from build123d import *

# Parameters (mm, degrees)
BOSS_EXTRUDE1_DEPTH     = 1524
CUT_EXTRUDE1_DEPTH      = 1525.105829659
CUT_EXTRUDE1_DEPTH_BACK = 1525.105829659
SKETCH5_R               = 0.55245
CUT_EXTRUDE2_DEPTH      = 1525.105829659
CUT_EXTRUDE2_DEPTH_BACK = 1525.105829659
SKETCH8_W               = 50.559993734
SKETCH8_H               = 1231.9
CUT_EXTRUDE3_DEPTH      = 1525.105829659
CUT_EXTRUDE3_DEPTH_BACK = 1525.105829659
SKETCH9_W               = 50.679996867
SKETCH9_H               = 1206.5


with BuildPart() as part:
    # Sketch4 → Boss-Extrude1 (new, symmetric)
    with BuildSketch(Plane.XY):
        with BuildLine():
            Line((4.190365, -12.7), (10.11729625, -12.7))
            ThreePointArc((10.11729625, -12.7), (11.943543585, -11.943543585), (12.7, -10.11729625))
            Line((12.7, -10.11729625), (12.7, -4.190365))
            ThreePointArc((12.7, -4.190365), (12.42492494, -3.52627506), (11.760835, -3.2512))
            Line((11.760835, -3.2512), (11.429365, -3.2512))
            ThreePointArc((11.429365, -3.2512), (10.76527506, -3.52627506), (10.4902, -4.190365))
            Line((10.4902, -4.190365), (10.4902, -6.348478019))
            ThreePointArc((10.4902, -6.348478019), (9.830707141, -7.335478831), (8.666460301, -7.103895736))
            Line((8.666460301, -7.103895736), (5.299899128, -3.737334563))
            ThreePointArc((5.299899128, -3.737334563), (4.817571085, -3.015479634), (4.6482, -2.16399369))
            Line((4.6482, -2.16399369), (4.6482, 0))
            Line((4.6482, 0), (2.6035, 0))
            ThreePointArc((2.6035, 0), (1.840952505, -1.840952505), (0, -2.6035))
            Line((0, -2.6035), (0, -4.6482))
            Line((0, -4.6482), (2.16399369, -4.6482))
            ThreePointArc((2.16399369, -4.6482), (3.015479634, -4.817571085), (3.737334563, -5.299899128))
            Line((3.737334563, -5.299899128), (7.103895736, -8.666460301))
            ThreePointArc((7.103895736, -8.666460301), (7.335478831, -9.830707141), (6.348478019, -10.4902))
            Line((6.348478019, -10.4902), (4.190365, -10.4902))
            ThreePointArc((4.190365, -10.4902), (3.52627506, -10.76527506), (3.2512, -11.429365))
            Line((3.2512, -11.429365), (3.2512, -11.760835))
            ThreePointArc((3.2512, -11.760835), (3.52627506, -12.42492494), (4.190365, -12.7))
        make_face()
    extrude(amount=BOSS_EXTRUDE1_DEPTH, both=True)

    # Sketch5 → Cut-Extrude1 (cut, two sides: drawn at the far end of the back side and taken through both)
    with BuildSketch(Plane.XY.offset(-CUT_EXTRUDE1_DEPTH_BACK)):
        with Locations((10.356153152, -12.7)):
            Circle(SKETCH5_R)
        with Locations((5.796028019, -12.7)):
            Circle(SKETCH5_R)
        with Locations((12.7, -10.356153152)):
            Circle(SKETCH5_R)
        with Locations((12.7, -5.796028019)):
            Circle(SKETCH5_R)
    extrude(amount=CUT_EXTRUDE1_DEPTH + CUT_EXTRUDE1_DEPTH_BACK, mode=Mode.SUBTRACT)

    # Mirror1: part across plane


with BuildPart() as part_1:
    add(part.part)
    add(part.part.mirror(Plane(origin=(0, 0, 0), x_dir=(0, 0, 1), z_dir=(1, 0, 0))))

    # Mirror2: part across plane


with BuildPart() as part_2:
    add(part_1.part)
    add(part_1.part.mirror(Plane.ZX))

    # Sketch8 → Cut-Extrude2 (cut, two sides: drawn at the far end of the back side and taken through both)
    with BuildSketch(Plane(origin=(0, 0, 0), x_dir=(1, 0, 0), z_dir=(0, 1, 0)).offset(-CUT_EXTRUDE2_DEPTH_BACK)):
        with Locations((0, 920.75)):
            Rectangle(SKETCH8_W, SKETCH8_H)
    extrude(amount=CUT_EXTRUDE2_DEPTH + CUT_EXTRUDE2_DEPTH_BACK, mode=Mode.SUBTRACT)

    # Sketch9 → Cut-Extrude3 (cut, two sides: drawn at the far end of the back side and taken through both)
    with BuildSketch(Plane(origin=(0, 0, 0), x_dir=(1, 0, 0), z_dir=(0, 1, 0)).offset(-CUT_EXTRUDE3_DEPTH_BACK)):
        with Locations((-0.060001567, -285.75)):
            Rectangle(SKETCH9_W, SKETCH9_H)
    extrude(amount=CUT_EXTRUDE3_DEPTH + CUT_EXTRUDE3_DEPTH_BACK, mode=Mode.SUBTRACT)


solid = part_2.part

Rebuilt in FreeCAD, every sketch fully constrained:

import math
import FreeCAD as App
import Part
import Sketcher
Q = App.Units.Quantity


def add_polygon(sketch, points):
    """Adds a closed chain of lines whose ends are joined by coincident constraints."""
    first, n = sketch.GeometryCount, len(points)
    for a, b in zip(points, points[1:] + points[:1]):
        sketch.addGeometry(Part.LineSegment(App.Vector(*a, 0), App.Vector(*b, 0)), False)
    for i in range(n):
        sketch.addConstraint(Sketcher.Constraint("Coincident", first + i, 2, first + (i + 1) % n, 1))

doc = App.newDocument("Part")
params = doc.addObject("Spreadsheet::Sheet", "Params")
for row, (alias, value) in enumerate([
    ("pad1_length", "120 in"),
    ("sketch3_height", "48.5 in"),
    ("sketch4_height", "47.5 in"),
], start=1):
    params.set(f"A{row}", alias)
    params.set(f"B{row}", "=" + value)
    params.setAlias(f"B{row}", alias)

body = doc.addObject("PartDesign::Body", "Body")

sketch1 = doc.addObject("Sketcher::SketchObject", "Sketch")
body.addObject(sketch1)
sketch1.AttachmentSupport = (doc.XY_Plane, [""])
sketch1.MapMode = "FlatFace"
sketch1.addGeometry(Part.LineSegment(App.Vector(4.19, -12.7, 0), App.Vector(10.12, -12.7, 0)), False)
sketch1.addGeometry(Part.ArcOfCircle(Part.Circle(App.Vector(10.12, -10.12, 0), App.Vector(0, 0, 1), 2.58), math.radians(-90), math.radians(0)), False)
sketch1.addGeometry(Part.LineSegment(App.Vector(12.7, -10.12, 0), App.Vector(12.7, -4.19, 0)), False)
sketch1.addGeometry(Part.ArcOfCircle(Part.Circle(App.Vector(11.76, -4.19, 0), App.Vector(0, 0, 1), 0.94), math.radians(0), math.radians(90)), False)
sketch1.addGeometry(Part.LineSegment(App.Vector(11.76, -3.25, 0), App.Vector(11.43, -3.25, 0)), False)
sketch1.addGeometry(Part.ArcOfCircle(Part.Circle(App.Vector(11.43, -4.19, 0), App.Vector(0, 0, 1), 0.94), math.radians(90), math.radians(180)), False)
sketch1.addGeometry(Part.LineSegment(App.Vector(10.49, -4.19, 0), App.Vector(10.49, -6.35, 0)), False)
sketch1.addGeometry(Part.ArcOfCircle(Part.Circle(App.Vector(9.42, -6.35, 0), App.Vector(0, 0, 1), 1.07), math.radians(-135), math.radians(0)), False)
sketch1.addGeometry(Part.LineSegment(App.Vector(8.67, -7.1, 0), App.Vector(5.3, -3.74, 0)), False)
sketch1.addGeometry(Part.ArcOfCircle(Part.Circle(App.Vector(6.87, -2.16, 0), App.Vector(0, 0, 1), 2.23), math.radians(-180), math.radians(-135)), False)
sketch1.addGeometry(Part.LineSegment(App.Vector(4.65, -2.16, 0), App.Vector(4.65, 0, 0)), False)
sketch1.addGeometry(Part.LineSegment(App.Vector(4.65, 0, 0), App.Vector(2.6, 0, 0)), False)
sketch1.addGeometry(Part.ArcOfCircle(Part.Circle(App.Vector(0, 0, 0), App.Vector(0, 0, 1), 2.6), math.radians(-90), math.radians(0)), False)
sketch1.addGeometry(Part.LineSegment(App.Vector(0, -2.6, 0), App.Vector(0, -4.65, 0)), False)
sketch1.addGeometry(Part.LineSegment(App.Vector(0, -4.65, 0), App.Vector(2.16, -4.65, 0)), False)
sketch1.addGeometry(Part.ArcOfCircle(Part.Circle(App.Vector(2.16, -6.87, 0), App.Vector(0, 0, 1), 2.23), math.radians(45), math.radians(90)), False)
sketch1.addGeometry(Part.LineSegment(App.Vector(3.74, -5.3, 0), App.Vector(7.1, -8.67, 0)), False)
sketch1.addGeometry(Part.ArcOfCircle(Part.Circle(App.Vector(6.35, -9.42, 0), App.Vector(0, 0, 1), 1.07), math.radians(-90), math.radians(45)), False)
sketch1.addGeometry(Part.LineSegment(App.Vector(6.35, -10.49, 0), App.Vector(4.19, -10.49, 0)), False)
sketch1.addGeometry(Part.ArcOfCircle(Part.Circle(App.Vector(4.19, -11.43, 0), App.Vector(0, 0, 1), 0.94), math.radians(90), math.radians(180)), False)
sketch1.addGeometry(Part.LineSegment(App.Vector(3.25, -11.43, 0), App.Vector(3.25, -11.76, 0)), False)
sketch1.addGeometry(Part.ArcOfCircle(Part.Circle(App.Vector(4.19, -11.76, 0), App.Vector(0, 0, 1), 0.94), math.radians(-180), math.radians(-90)), False)
sketch1.addConstraint(Sketcher.Constraint("Tangent", 0, 2, 1, 1))
sketch1.addConstraint(Sketcher.Constraint("Tangent", 1, 2, 2, 1))
sketch1.addConstraint(Sketcher.Constraint("Tangent", 2, 2, 3, 1))
sketch1.addConstraint(Sketcher.Constraint("Tangent", 3, 2, 4, 1))
sketch1.addConstraint(Sketcher.Constraint("Tangent", 4, 2, 5, 1))
sketch1.addConstraint(Sketcher.Constraint("Tangent", 5, 2, 6, 1))
sketch1.addConstraint(Sketcher.Constraint("Tangent", 6, 2, 7, 2))
sketch1.addConstraint(Sketcher.Constraint("Tangent", 7, 1, 8, 1))
sketch1.addConstraint(Sketcher.Constraint("Tangent", 8, 2, 9, 2))
sketch1.addConstraint(Sketcher.Constraint("Tangent", 9, 1, 10, 1))
sketch1.addConstraint(Sketcher.Constraint("Coincident", 10, 2, 11, 1))
sketch1.addConstraint(Sketcher.Constraint("Coincident", 11, 2, 12, 2))
sketch1.addConstraint(Sketcher.Constraint("Coincident", 12, 1, 13, 1))
sketch1.addConstraint(Sketcher.Constraint("Coincident", 13, 2, 14, 1))
sketch1.addConstraint(Sketcher.Constraint("Tangent", 14, 2, 15, 2))
sketch1.addConstraint(Sketcher.Constraint("Tangent", 15, 1, 16, 1))
sketch1.addConstraint(Sketcher.Constraint("Tangent", 16, 2, 17, 2))
sketch1.addConstraint(Sketcher.Constraint("Tangent", 17, 1, 18, 1))
sketch1.addConstraint(Sketcher.Constraint("Tangent", 18, 2, 19, 1))
sketch1.addConstraint(Sketcher.Constraint("Tangent", 19, 2, 20, 1))
sketch1.addConstraint(Sketcher.Constraint("Tangent", 20, 2, 21, 1))
sketch1.addConstraint(Sketcher.Constraint("Tangent", 21, 2, 0, 1))
sketch1.addConstraint(Sketcher.Constraint("Horizontal", 0))
sketch1.addConstraint(Sketcher.Constraint("Vertical", 2))
sketch1.addConstraint(Sketcher.Constraint("Horizontal", 4))
sketch1.addConstraint(Sketcher.Constraint("Vertical", 6))
sketch1.addConstraint(Sketcher.Constraint("Vertical", 10))
sketch1.addConstraint(Sketcher.Constraint("Horizontal", 11))
sketch1.addConstraint(Sketcher.Constraint("Vertical", 13))
sketch1.addConstraint(Sketcher.Constraint("Horizontal", 14))
sketch1.addConstraint(Sketcher.Constraint("Horizontal", 18))
sketch1.addConstraint(Sketcher.Constraint("Vertical", 20))
sketch1.addConstraint(Sketcher.Constraint("Coincident", 12, 3, -1, 1))
sketch1.addConstraint(Sketcher.Constraint("Equal", 3, 5))
sketch1.addConstraint(Sketcher.Constraint("Equal", 9, 15))
sketch1.addConstraint(Sketcher.Constraint("Equal", 7, 17))
sketch1.addConstraint(Sketcher.Constraint("Equal", 5, 19))
sketch1.addConstraint(Sketcher.Constraint("Equal", 19, 21))
sketch1.addConstraint(Sketcher.Constraint("PointOnObject", 10, 2, -1))
sketch1.addConstraint(Sketcher.Constraint("PointOnObject", 12, 1, -2))
sketch1.addConstraint(Sketcher.Constraint("Parallel", 8, 16))
sketch1.addConstraint(Sketcher.Constraint("Equal", 0, 2))
sketch1.addConstraint(Sketcher.Constraint("Equal", 18, 6))
sketch1.addConstraint(Sketcher.Constraint("Equal", 14, 10))
sketch1.addConstraint(Sketcher.Constraint("Equal", 11, 13))
sketch1.addConstraint(Sketcher.Constraint("Equal", 4, 20))
sketch1.addConstraint(Sketcher.Constraint("Equal", 8, 16))
sketch1.addConstraint(Sketcher.Constraint("DistanceY", 0, 2, -1, 1, Q("0.5 in")))
sketch1.addConstraint(Sketcher.Constraint("Radius", 9, Q("0.0876 in")))
sketch1.addConstraint(Sketcher.Constraint("Radius", 12, Q("0.1025 in")))
sketch1.addConstraint(Sketcher.Constraint("DistanceX", 9, 1, 5, 2, Q("0.23 in")))
sketch1.addConstraint(Sketcher.Constraint("DistanceX", 11, 2, 11, 1, Q("0.0805 in")))
sketch1.addConstraint(Sketcher.Constraint("DistanceY", 3, 2, -1, 1, Q("0.128 in")))
sketch1.addConstraint(Sketcher.Constraint("Radius", 7, 1.068322))
sketch1.addConstraint(Sketcher.Constraint("DistanceX", 17, 3, 7, 3, Q("0.121 in")))
sketch1.addConstraint(Sketcher.Constraint("Radius", 1, 2.582704))
sketch1.addConstraint(Sketcher.Constraint("Radius", 3, 0.939165))
pad1 = doc.addObject("PartDesign::Pad", "Pad")
body.addObject(pad1)
pad1.Profile = sketch1
pad1.setExpression("Length", "Params.pad1_length")
pad1.Midplane = True

sketch2 = doc.addObject("Sketcher::SketchObject", "Sketch001")
body.addObject(sketch2)
sketch2.AttachmentSupport = (doc.XY_Plane, [""])
sketch2.MapMode = "FlatFace"
sketch2.addGeometry(Part.Circle(App.Vector(10.4, -12.7, 0), App.Vector(0, 0, 1), 0.6), False)
sketch2.addGeometry(Part.Circle(App.Vector(5.8, -12.7, 0), App.Vector(0, 0, 1), 0.6), False)
sketch2.addGeometry(Part.Circle(App.Vector(12.7, -10.4, 0), App.Vector(0, 0, 1), 0.6), False)
sketch2.addGeometry(Part.Circle(App.Vector(12.7, -5.8, 0), App.Vector(0, 0, 1), 0.6), False)
sketch2.addConstraint(Sketcher.Constraint("Equal", 0, 1))
sketch2.addConstraint(Sketcher.Constraint("Equal", 1, 2))
sketch2.addConstraint(Sketcher.Constraint("Equal", 2, 3))
sketch2.addConstraint(Sketcher.Constraint("Horizontal", 0, 3, 1, 3))
sketch2.addConstraint(Sketcher.Constraint("Vertical", 2, 3, 3, 3))
sketch2.addConstraint(Sketcher.Constraint("Diameter", 0, Q("0.0435 in")))
sketch2.addConstraint(Sketcher.Constraint("DistanceY", 0, 3, -1, 1, Q("0.5 in")))
sketch2.addConstraint(Sketcher.Constraint("DistanceX", -1, 1, 2, 3, Q("0.5 in")))
sketch2.addConstraint(Sketcher.Constraint("DistanceX", -1, 1, 1, 3, 5.796028))
sketch2.addConstraint(Sketcher.Constraint("DistanceY", 3, 3, -1, 1, 5.796028))
sketch2.addConstraint(Sketcher.Constraint("DistanceX", -1, 1, 0, 3, 10.356153))
sketch2.addConstraint(Sketcher.Constraint("DistanceY", 2, 3, -1, 1, 10.356153))
pocket1 = doc.addObject("PartDesign::Pocket", "Pocket")
body.addObject(pocket1)
pocket1.Profile = sketch2
pocket1.Type = "ThroughAll"
pocket1.Midplane = True
body2 = doc.addObject("PartDesign::Body", "Body001")
doc.recompute()

body2.BaseFeature = body
doc.recompute()

mirroring = doc.addObject("Part::Mirroring", "Mirroring")
mirroring.Source = body
mirroring.Base = App.Vector(0, 0, 0)
mirroring.Normal = App.Vector(1, 0, 0)
body3 = doc.addObject("PartDesign::Body", "Body002")
body3.BaseFeature = mirroring
boolean = doc.addObject("PartDesign::Boolean", "Boolean")
body2.addObject(boolean)
boolean.Type = "Fuse"
boolean.addObjects([body3])
doc.recompute()
body4 = doc.addObject("PartDesign::Body", "Body003")
doc.recompute()

body4.BaseFeature = body2
doc.recompute()

mirroring2 = doc.addObject("Part::Mirroring", "Mirroring001")
mirroring2.Source = body2
mirroring2.Base = App.Vector(0, 0, 0)
mirroring2.Normal = App.Vector(0, 1, 0)
body5 = doc.addObject("PartDesign::Body", "Body004")
body5.BaseFeature = mirroring2
boolean2 = doc.addObject("PartDesign::Boolean", "Boolean001")
body4.addObject(boolean2)
boolean2.Type = "Fuse"
boolean2.addObjects([body5])
doc.recompute()

sketch3 = doc.addObject("Sketcher::SketchObject", "Sketch002")
body4.addObject(sketch3)
sketch3.AttachmentSupport = (doc.getObject("XZ_Plane003"), [""])
sketch3.MapMode = "FlatFace"
add_polygon(sketch3, [(-25, -1537), (-25, -305), (25, -305), (25, -1537)])
sketch3.addConstraint(Sketcher.Constraint("Vertical", 0))
sketch3.addConstraint(Sketcher.Constraint("Horizontal", 1))
sketch3.addConstraint(Sketcher.Constraint("Vertical", 2))
sketch3.addConstraint(Sketcher.Constraint("Horizontal", 3))
sketch3.addConstraint(Sketcher.Constraint("DistanceY", 0, 1, 0, 2, Q("48.5 in")))
sketch3.addConstraint(Sketcher.Constraint("DistanceY", 0, 2, -1, 1, Q("12 in")))
sketch3.addConstraint(Sketcher.Constraint("DistanceX", 1, 1, 1, 2, 50.559994))
sketch3.addConstraint(Sketcher.Constraint("DistanceX", 0, 2, -1, 1, 25.279997))
sketch3.setExpression("Constraints[8]", "Params.sketch3_height")
pocket2 = doc.addObject("PartDesign::Pocket", "Pocket001")
body4.addObject(pocket2)
pocket2.Profile = sketch3
pocket2.Type = "ThroughAll"
pocket2.Midplane = True

sketch4 = doc.addObject("Sketcher::SketchObject", "Sketch003")
body4.addObject(sketch4)
sketch4.AttachmentSupport = (doc.getObject("XZ_Plane003"), [""])
sketch4.MapMode = "FlatFace"
add_polygon(sketch4, [(-25, -318), (-25, 889), (25, 889), (25, -318)])
sketch4.addConstraint(Sketcher.Constraint("Vertical", 0))
sketch4.addConstraint(Sketcher.Constraint("Horizontal", 1))
sketch4.addConstraint(Sketcher.Constraint("Vertical", 2))
sketch4.addConstraint(Sketcher.Constraint("Horizontal", 3))
sketch4.addConstraint(Sketcher.Constraint("DistanceY", 0, 1, 0, 2, Q("47.5 in")))
sketch4.addConstraint(Sketcher.Constraint("DistanceX", 0, 2, -1, 1, Q("1 in")))
sketch4.addConstraint(Sketcher.Constraint("DistanceY", -1, 1, 0, 2, Q("35 in")))
sketch4.addConstraint(Sketcher.Constraint("DistanceX", 1, 1, 1, 2, 50.679997))
sketch4.setExpression("Constraints[8]", "Params.sketch4_height")
pocket3 = doc.addObject("PartDesign::Pocket", "Pocket002")
body4.addObject(pocket3)
pocket3.Profile = sketch4
pocket3.Type = "ThroughAll"
pocket3.Midplane = True
mirroring.Visibility = False
mirroring2.Visibility = False

doc.recompute()
